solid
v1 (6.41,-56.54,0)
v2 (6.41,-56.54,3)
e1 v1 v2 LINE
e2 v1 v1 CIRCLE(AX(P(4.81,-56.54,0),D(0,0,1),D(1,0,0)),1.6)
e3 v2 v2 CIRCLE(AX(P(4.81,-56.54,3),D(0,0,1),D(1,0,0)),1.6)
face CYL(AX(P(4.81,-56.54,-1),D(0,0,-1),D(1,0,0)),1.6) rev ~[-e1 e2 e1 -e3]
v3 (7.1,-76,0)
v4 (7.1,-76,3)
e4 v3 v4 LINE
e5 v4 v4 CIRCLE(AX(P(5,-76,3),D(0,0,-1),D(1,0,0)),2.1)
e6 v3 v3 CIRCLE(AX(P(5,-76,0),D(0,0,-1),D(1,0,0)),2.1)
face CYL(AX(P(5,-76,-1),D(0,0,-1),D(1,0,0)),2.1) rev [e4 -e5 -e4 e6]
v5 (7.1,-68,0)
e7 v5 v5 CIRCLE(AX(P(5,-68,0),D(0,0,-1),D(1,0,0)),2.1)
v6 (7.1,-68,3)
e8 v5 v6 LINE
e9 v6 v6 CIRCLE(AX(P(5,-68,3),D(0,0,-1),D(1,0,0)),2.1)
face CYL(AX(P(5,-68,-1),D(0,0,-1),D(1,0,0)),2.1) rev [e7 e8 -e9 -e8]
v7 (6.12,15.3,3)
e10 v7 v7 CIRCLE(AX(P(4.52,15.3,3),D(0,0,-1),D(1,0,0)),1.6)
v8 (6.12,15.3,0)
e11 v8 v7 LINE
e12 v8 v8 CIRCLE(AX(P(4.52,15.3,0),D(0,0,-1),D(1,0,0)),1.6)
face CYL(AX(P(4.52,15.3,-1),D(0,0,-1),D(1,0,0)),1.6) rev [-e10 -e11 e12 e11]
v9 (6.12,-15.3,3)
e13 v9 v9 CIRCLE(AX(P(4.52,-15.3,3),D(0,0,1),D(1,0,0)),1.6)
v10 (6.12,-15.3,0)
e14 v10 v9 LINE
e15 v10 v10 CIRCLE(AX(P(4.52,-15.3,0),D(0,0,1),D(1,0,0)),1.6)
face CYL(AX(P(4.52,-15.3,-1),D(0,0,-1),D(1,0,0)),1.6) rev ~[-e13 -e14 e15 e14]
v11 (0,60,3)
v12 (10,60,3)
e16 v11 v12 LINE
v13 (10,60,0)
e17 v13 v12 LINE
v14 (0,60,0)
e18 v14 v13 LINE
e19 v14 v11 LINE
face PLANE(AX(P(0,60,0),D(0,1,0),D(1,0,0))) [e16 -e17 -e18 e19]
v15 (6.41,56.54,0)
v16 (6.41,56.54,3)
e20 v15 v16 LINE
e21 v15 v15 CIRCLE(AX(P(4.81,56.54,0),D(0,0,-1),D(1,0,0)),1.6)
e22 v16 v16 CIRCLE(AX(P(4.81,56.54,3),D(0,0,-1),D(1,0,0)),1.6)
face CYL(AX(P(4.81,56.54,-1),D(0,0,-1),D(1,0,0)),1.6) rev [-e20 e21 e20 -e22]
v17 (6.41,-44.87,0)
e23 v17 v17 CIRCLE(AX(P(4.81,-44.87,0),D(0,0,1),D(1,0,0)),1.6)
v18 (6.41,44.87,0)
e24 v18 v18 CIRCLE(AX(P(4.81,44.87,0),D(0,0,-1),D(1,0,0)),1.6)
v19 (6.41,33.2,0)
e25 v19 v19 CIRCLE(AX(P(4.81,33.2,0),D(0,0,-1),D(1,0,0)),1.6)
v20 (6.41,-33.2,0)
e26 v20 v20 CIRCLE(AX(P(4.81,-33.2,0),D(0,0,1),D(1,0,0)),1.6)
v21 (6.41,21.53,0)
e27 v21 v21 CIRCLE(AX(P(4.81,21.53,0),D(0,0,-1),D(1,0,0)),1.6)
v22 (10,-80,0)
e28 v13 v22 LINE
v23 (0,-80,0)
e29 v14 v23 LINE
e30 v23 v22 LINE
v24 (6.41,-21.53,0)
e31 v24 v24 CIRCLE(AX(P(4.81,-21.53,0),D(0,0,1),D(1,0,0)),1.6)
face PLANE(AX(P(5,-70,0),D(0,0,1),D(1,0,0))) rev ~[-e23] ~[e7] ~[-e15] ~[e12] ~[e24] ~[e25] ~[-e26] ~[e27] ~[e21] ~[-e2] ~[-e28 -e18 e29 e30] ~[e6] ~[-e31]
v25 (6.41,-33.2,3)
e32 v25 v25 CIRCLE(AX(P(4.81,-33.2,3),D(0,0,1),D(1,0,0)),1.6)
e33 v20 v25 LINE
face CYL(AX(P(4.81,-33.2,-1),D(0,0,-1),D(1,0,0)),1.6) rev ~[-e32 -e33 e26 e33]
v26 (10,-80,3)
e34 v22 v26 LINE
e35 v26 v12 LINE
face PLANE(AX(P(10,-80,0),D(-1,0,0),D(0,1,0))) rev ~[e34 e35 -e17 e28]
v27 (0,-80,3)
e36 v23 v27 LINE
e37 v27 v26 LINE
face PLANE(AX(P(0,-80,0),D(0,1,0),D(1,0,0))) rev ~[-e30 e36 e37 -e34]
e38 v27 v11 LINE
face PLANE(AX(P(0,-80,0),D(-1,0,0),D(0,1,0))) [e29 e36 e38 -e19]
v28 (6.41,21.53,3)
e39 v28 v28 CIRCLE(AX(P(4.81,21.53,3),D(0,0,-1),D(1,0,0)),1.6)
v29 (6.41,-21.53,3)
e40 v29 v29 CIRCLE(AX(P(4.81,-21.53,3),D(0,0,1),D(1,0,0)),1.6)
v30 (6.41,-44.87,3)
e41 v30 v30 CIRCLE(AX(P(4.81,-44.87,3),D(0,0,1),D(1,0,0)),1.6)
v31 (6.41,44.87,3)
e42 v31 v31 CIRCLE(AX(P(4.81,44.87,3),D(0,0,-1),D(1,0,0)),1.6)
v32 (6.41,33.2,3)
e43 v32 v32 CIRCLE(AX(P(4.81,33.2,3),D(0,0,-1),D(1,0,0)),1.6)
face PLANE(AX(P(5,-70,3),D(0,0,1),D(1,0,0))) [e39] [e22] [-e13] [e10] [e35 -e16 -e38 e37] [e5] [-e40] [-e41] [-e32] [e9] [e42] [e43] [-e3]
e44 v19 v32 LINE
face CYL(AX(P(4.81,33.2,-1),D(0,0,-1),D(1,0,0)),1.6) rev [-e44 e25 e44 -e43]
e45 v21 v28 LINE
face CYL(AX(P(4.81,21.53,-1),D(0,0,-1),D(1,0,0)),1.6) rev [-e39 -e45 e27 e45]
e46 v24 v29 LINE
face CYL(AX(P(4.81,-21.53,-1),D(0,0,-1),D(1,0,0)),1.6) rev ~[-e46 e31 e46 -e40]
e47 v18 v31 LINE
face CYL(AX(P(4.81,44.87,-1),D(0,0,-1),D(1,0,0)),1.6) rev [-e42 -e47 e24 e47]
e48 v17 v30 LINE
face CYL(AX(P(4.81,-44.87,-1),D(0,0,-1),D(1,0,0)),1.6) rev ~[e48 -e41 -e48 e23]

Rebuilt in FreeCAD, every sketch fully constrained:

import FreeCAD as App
import Part
import Sketcher
from FreeCAD import Vector
Q = App.Units.Quantity

doc = App.newDocument("Part")
body = doc.addObject("PartDesign::Body", "Body")

# Sketch on XY plane
sketch1 = doc.addObject("Sketcher::SketchObject", "Sketch")
body.addObject(sketch1)
sketch1.AttachmentSupport = (doc.XY_Plane, [""])
sketch1.MapMode = "FlatFace"
sketch1.AttachmentOffset = App.Placement(Vector(0, 0, -1), App.Rotation())
sketch1.addGeometry(Part.Circle(Vector(5, -68, 0), Vector(0, 0, 1), 2.1), False)
sketch1.addConstraint([
    Sketcher.Constraint("Diameter", 0, Q("4.2 mm")),
    Sketcher.Constraint("DistanceX", -1, 1, 0, 3, Q("5 mm")),
    Sketcher.Constraint("DistanceY", 0, 3, -1, 1, Q("68 mm")),
])
pad1 = doc.addObject("PartDesign::Pad", "Pad")
body.addObject(pad1)
pad1.Profile = sketch1
pad1.Length = 5
body2 = doc.addObject("PartDesign::Body", "Body001")
body2.AllowCompound = True

# Sketch on XY plane
sketch2 = doc.addObject("Sketcher::SketchObject", "Sketch001")
body2.addObject(sketch2)
sketch2.AttachmentSupport = (doc.getObject("XY_Plane001"), [""])
sketch2.MapMode = "FlatFace"
sketch2.AttachmentOffset = App.Placement(Vector(0, 0, -1), App.Rotation())
sketch2.addGeometry(Part.Circle(Vector(5, -76, 0), Vector(0, 0, 1), 2.1), False)
sketch2.addConstraint([
    Sketcher.Constraint("Diameter", 0, Q("4.2 mm")),
    Sketcher.Constraint("DistanceX", -1, 1, 0, 3, Q("5 mm")),
    Sketcher.Constraint("DistanceY", 0, 3, -1, 1, Q("76 mm")),
])
pad2 = doc.addObject("PartDesign::Pad", "Pad001")
body2.addObject(pad2)
pad2.Profile = sketch2
pad2.Length = 5
doc.recompute()

boolean = doc.addObject("PartDesign::Boolean", "Boolean")
body2.addObject(boolean)
boolean.Type = "Fuse"
boolean.addObjects([body])
body3 = doc.addObject("PartDesign::Body", "Body002")

# Sketch on XY plane
sketch3 = doc.addObject("Sketcher::SketchObject", "Sketch002")
body3.addObject(sketch3)
sketch3.AttachmentSupport = (doc.getObject("XY_Plane002"), [""])
sketch3.MapMode = "FlatFace"
sketch3.addGeometry([
    Part.LineSegment(Vector(0, -60, 0), Vector(0, -80, 0)),
    Part.LineSegment(Vector(0, -80, 0), Vector(10, -80, 0)),
    Part.LineSegment(Vector(10, -80, 0), Vector(10, -60, 0)),
    Part.LineSegment(Vector(10, -60, 0), Vector(0, -60, 0)),
], False)
sketch3.addConstraint([
    Sketcher.Constraint("Coincident", 0, 2, 1, 1),
    Sketcher.Constraint("Coincident", 1, 2, 2, 1),
    Sketcher.Constraint("Coincident", 2, 2, 3, 1),
    Sketcher.Constraint("Coincident", 3, 2, 0, 1),
    Sketcher.Constraint("Vertical", 0),
    Sketcher.Constraint("Horizontal", 1),
    Sketcher.Constraint("Vertical", 2),
    Sketcher.Constraint("Horizontal", 3),
    Sketcher.Constraint("PointOnObject", 0, 2, -2),
    Sketcher.Constraint("DistanceX", 1, 1, 1, 2, Q("10 mm")),
    Sketcher.Constraint("DistanceY", 0, 2, 0, 1, Q("20 mm")),
    Sketcher.Constraint("DistanceY", 0, 2, -1, 1, Q("80 mm")),
])
pad3 = doc.addObject("PartDesign::Pad", "Pad002")
body3.addObject(pad3)
pad3.Profile = sketch3
pad3.Length = 3
doc.recompute()

boolean2 = doc.addObject("PartDesign::Boolean", "Boolean001")
body3.addObject(boolean2)
boolean2.Type = "Cut"
boolean2.addObjects([body2])
body4 = doc.addObject("PartDesign::Body", "Body003")

# Sketch on XY plane
sketch4 = doc.addObject("Sketcher::SketchObject", "Sketch003")
body4.addObject(sketch4)
sketch4.AttachmentSupport = (doc.getObject("XY_Plane003"), [""])
sketch4.MapMode = "FlatFace"
sketch4.AttachmentOffset = App.Placement(Vector(0, 0, -1), App.Rotation())
sketch4.addGeometry(Part.Circle(Vector(4.5, 15.3, 0), Vector(0, 0, 1), 1.6), False)
sketch4.addConstraint([
    Sketcher.Constraint("Diameter", 0, Q("3.2 mm")),
    Sketcher.Constraint("DistanceY", -1, 1, 0, 3, Q("15.3 mm")),
    Sketcher.Constraint("DistanceX", -1, 1, 0, 3, Q("4.52 mm")),
])
pad4 = doc.addObject("PartDesign::Pad", "Pad003")
body4.addObject(pad4)
pad4.Profile = sketch4
pad4.Length = 5
body5 = doc.addObject("PartDesign::Body", "Body004")

# Sketch on XY plane
sketch5 = doc.addObject("Sketcher::SketchObject", "Sketch004")
body5.addObject(sketch5)
sketch5.AttachmentSupport = (doc.getObject("XY_Plane004"), [""])
sketch5.MapMode = "FlatFace"
sketch5.AttachmentOffset = App.Placement(Vector(0, 0, -1), App.Rotation())
sketch5.addGeometry(Part.Circle(Vector(4.8, 44.9, 0), Vector(0, 0, 1), 1.6), False)
sketch5.addConstraint([
    Sketcher.Constraint("Diameter", 0, Q("3.2 mm")),
    Sketcher.Constraint("DistanceX", -1, 1, 0, 3, Q("4.81 mm")),
    Sketcher.Constraint("DistanceY", -1, 1, 0, 3, Q("44.87 mm")),
])
pad5 = doc.addObject("PartDesign::Pad", "Pad004")
body5.addObject(pad5)
pad5.Profile = sketch5
pad5.Length = 5
body6 = doc.addObject("PartDesign::Body", "Body005")

# Sketch on XY plane
sketch6 = doc.addObject("Sketcher::SketchObject", "Sketch005")
body6.addObject(sketch6)
sketch6.AttachmentSupport = (doc.getObject("XY_Plane005"), [""])
sketch6.MapMode = "FlatFace"
sketch6.AttachmentOffset = App.Placement(Vector(0, 0, -1), App.Rotation())
sketch6.addGeometry(Part.Circle(Vector(4.8, 33.2, 0), Vector(0, 0, 1), 1.6), False)
sketch6.addConstraint([
    Sketcher.Constraint("Diameter", 0, Q("3.2 mm")),
    Sketcher.Constraint("DistanceY", -1, 1, 0, 3, Q("33.2 mm")),
    Sketcher.Constraint("DistanceX", -1, 1, 0, 3, Q("4.81 mm")),
])
pad6 = doc.addObject("PartDesign::Pad", "Pad005")
body6.addObject(pad6)
pad6.Profile = sketch6
pad6.Length = 5
body7 = doc.addObject("PartDesign::Body", "Body006")

# Sketch on XY plane
sketch7 = doc.addObject("Sketcher::SketchObject", "Sketch006")
body7.addObject(sketch7)
sketch7.AttachmentSupport = (doc.getObject("XY_Plane006"), [""])
sketch7.MapMode = "FlatFace"
sketch7.AttachmentOffset = App.Placement(Vector(0, 0, -1), App.Rotation())
sketch7.addGeometry(Part.Circle(Vector(4.8, 21.5, 0), Vector(0, 0, 1), 1.6), False)
sketch7.addConstraint([
    Sketcher.Constraint("Diameter", 0, Q("3.2 mm")),
    Sketcher.Constraint("DistanceX", -1, 1, 0, 3, Q("4.81 mm")),
    Sketcher.Constraint("DistanceY", -1, 1, 0, 3, Q("21.53 mm")),
])
pad7 = doc.addObject("PartDesign::Pad", "Pad006")
body7.addObject(pad7)
pad7.Profile = sketch7
pad7.Length = 5
body8 = doc.addObject("PartDesign::Body", "Body007")
body8.AllowCompound = True

# Sketch on XY plane
sketch8 = doc.addObject("Sketcher::SketchObject", "Sketch007")
body8.addObject(sketch8)
sketch8.AttachmentSupport = (doc.getObject("XY_Plane007"), [""])
sketch8.MapMode = "FlatFace"
sketch8.AttachmentOffset = App.Placement(Vector(0, 0, -1), App.Rotation())
sketch8.addGeometry(Part.Circle(Vector(4.8, 56.5, 0), Vector(0, 0, 1), 1.6), False)
sketch8.addConstraint([
    Sketcher.Constraint("Diameter", 0, Q("3.2 mm")),
    Sketcher.Constraint("DistanceX", -1, 1, 0, 3, Q("4.81 mm")),
    Sketcher.Constraint("DistanceY", -1, 1, 0, 3, Q("56.54 mm")),
])
pad8 = doc.addObject("PartDesign::Pad", "Pad007")
body8.addObject(pad8)
pad8.Profile = sketch8
pad8.Length = 5
doc.recompute()

boolean3 = doc.addObject("PartDesign::Boolean", "Boolean002")
body8.addObject(boolean3)
boolean3.Type = "Fuse"
boolean3.addObjects([body5])
doc.recompute()

boolean4 = doc.addObject("PartDesign::Boolean", "Boolean003")
body8.addObject(boolean4)
boolean4.Type = "Fuse"
boolean4.addObjects([body6])
doc.recompute()

boolean5 = doc.addObject("PartDesign::Boolean", "Boolean004")
body8.addObject(boolean5)
boolean5.Type = "Fuse"
boolean5.addObjects([body7])
doc.recompute()

boolean6 = doc.addObject("PartDesign::Boolean", "Boolean005")
body8.addObject(boolean6)
boolean6.Type = "Fuse"
boolean6.addObjects([body4])
body9 = doc.addObject("PartDesign::Body", "Body008")

# Sketch on XY plane
sketch9 = doc.addObject("Sketcher::SketchObject", "Sketch008")
body9.addObject(sketch9)
sketch9.AttachmentSupport = (doc.getObject("XY_Plane008"), [""])
sketch9.MapMode = "FlatFace"
sketch9.addGeometry([
    Part.LineSegment(Vector(0, 60, 0), Vector(0, 0, 0)),
    Part.LineSegment(Vector(0, 0, 0), Vector(10, 0, 0)),
    Part.LineSegment(Vector(10, 0, 0), Vector(10, 60, 0)),
    Part.LineSegment(Vector(10, 60, 0), Vector(0, 60, 0)),
], False)
sketch9.addConstraint([
    Sketcher.Constraint("Coincident", 0, 2, 1, 1),
    Sketcher.Constraint("Coincident", 1, 2, 2, 1),
    Sketcher.Constraint("Coincident", 2, 2, 3, 1),
    Sketcher.Constraint("Coincident", 3, 2, 0, 1),
    Sketcher.Constraint("Vertical", 0),
    Sketcher.Constraint("Horizontal", 1),
    Sketcher.Constraint("Vertical", 2),
    Sketcher.Constraint("Horizontal", 3),
    Sketcher.Constraint("Coincident", 0, 2, -1, 1),
    Sketcher.Constraint("DistanceX", 1, 1, 1, 2, Q("10 mm")),
    Sketcher.Constraint("DistanceY", 0, 2, 0, 1, Q("60 mm")),
])
pad9 = doc.addObject("PartDesign::Pad", "Pad008")
body9.addObject(pad9)
pad9.Profile = sketch9
pad9.Length = 3
doc.recompute()

boolean7 = doc.addObject("PartDesign::Boolean", "Boolean006")
body9.addObject(boolean7)
boolean7.Type = "Cut"
boolean7.addObjects([body8])
body10 = doc.addObject("PartDesign::Body", "Body009")
doc.recompute()

mirroring = doc.addObject("Part::Mirroring", "Mirroring")
mirroring.Source = body9
mirroring.Base = Vector(0, 0, 0)
mirroring.Normal = Vector(0, 1, 0)
body10.BaseFeature = mirroring
doc.recompute()
body11 = doc.addObject("PartDesign::Body", "Body010")

# Sketch on XY plane
sketch10 = doc.addObject("Sketcher::SketchObject", "Sketch009")
body11.addObject(sketch10)
sketch10.AttachmentSupport = (doc.getObject("XY_Plane010"), [""])
sketch10.MapMode = "FlatFace"
sketch10.AttachmentOffset = App.Placement(Vector(0, 0, -1), App.Rotation())
sketch10.addGeometry(Part.Circle(Vector(4.5, 15.3, 0), Vector(0, 0, 1), 1.6), False)
sketch10.addConstraint([
    Sketcher.Constraint("Diameter", 0, Q("3.2 mm")),
    Sketcher.Constraint("DistanceY", -1, 1, 0, 3, Q("15.3 mm")),
    Sketcher.Constraint("DistanceX", -1, 1, 0, 3, Q("4.52 mm")),
])
pad10 = doc.addObject("PartDesign::Pad", "Pad009")
body11.addObject(pad10)
pad10.Profile = sketch10
pad10.Length = 5
body12 = doc.addObject("PartDesign::Body", "Body011")

# Sketch on XY plane
sketch11 = doc.addObject("Sketcher::SketchObject", "Sketch010")
body12.addObject(sketch11)
sketch11.AttachmentSupport = (doc.getObject("XY_Plane011"), [""])
sketch11.MapMode = "FlatFace"
sketch11.AttachmentOffset = App.Placement(Vector(0, 0, -1), App.Rotation())
sketch11.addGeometry(Part.Circle(Vector(4.8, 44.9, 0), Vector(0, 0, 1), 1.6), False)
sketch11.addConstraint([
    Sketcher.Constraint("Diameter", 0, Q("3.2 mm")),
    Sketcher.Constraint("DistanceX", -1, 1, 0, 3, Q("4.81 mm")),
    Sketcher.Constraint("DistanceY", -1, 1, 0, 3, Q("44.87 mm")),
])
pad11 = doc.addObject("PartDesign::Pad", "Pad010")
body12.addObject(pad11)
pad11.Profile = sketch11
pad11.Length = 5
body13 = doc.addObject("PartDesign::Body", "Body012")

# Sketch on XY plane
sketch12 = doc.addObject("Sketcher::SketchObject", "Sketch011")
body13.addObject(sketch12)
sketch12.AttachmentSupport = (doc.getObject("XY_Plane012"), [""])
sketch12.MapMode = "FlatFace"
sketch12.AttachmentOffset = App.Placement(Vector(0, 0, -1), App.Rotation())
sketch12.addGeometry(Part.Circle(Vector(4.8, 33.2, 0), Vector(0, 0, 1), 1.6), False)
sketch12.addConstraint([
    Sketcher.Constraint("Diameter", 0, Q("3.2 mm")),
    Sketcher.Constraint("DistanceY", -1, 1, 0, 3, Q("33.2 mm")),
    Sketcher.Constraint("DistanceX", -1, 1, 0, 3, Q("4.81 mm")),
])
pad12 = doc.addObject("PartDesign::Pad", "Pad011")
body13.addObject(pad12)
pad12.Profile = sketch12
pad12.Length = 5
body14 = doc.addObject("PartDesign::Body", "Body013")

# Sketch on XY plane
sketch13 = doc.addObject("Sketcher::SketchObject", "Sketch012")
body14.addObject(sketch13)
sketch13.AttachmentSupport = (doc.getObject("XY_Plane013"), [""])
sketch13.MapMode = "FlatFace"
sketch13.AttachmentOffset = App.Placement(Vector(0, 0, -1), App.Rotation())
sketch13.addGeometry(Part.Circle(Vector(4.8, 21.5, 0), Vector(0, 0, 1), 1.6), False)
sketch13.addConstraint([
    Sketcher.Constraint("Diameter", 0, Q("3.2 mm")),
    Sketcher.Constraint("DistanceX", -1, 1, 0, 3, Q("4.81 mm")),
    Sketcher.Constraint("DistanceY", -1, 1, 0, 3, Q("21.53 mm")),
])
pad13 = doc.addObject("PartDesign::Pad", "Pad012")
body14.addObject(pad13)
pad13.Profile = sketch13
pad13.Length = 5
body15 = doc.addObject("PartDesign::Body", "Body014")
body15.AllowCompound = True

# Sketch on XY plane
sketch14 = doc.addObject("Sketcher::SketchObject", "Sketch013")
body15.addObject(sketch14)
sketch14.AttachmentSupport = (doc.getObject("XY_Plane014"), [""])
sketch14.MapMode = "FlatFace"
sketch14.AttachmentOffset = App.Placement(Vector(0, 0, -1), App.Rotation())
sketch14.addGeometry(Part.Circle(Vector(4.8, 56.5, 0), Vector(0, 0, 1), 1.6), False)
sketch14.addConstraint([
    Sketcher.Constraint("Diameter", 0, Q("3.2 mm")),
    Sketcher.Constraint("DistanceX", -1, 1, 0, 3, Q("4.81 mm")),
    Sketcher.Constraint("DistanceY", -1, 1, 0, 3, Q("56.54 mm")),
])
pad14 = doc.addObject("PartDesign::Pad", "Pad013")
body15.addObject(pad14)
pad14.Profile = sketch14
pad14.Length = 5
doc.recompute()

boolean8 = doc.addObject("PartDesign::Boolean", "Boolean007")
body15.addObject(boolean8)
boolean8.Type = "Fuse"
boolean8.addObjects([body12])
doc.recompute()

boolean9 = doc.addObject("PartDesign::Boolean", "Boolean008")
body15.addObject(boolean9)
boolean9.Type = "Fuse"
boolean9.addObjects([body13])
doc.recompute()

boolean10 = doc.addObject("PartDesign::Boolean", "Boolean009")
body15.addObject(boolean10)
boolean10.Type = "Fuse"
boolean10.addObjects([body14])
doc.recompute()

boolean11 = doc.addObject("PartDesign::Boolean", "Boolean010")
body15.addObject(boolean11)
boolean11.Type = "Fuse"
boolean11.addObjects([body11])
body16 = doc.addObject("PartDesign::Body", "Body015")

# Sketch on XY plane
sketch15 = doc.addObject("Sketcher::SketchObject", "Sketch014")
body16.addObject(sketch15)
sketch15.AttachmentSupport = (doc.getObject("XY_Plane015"), [""])
sketch15.MapMode = "FlatFace"
sketch15.addGeometry([
    Part.LineSegment(Vector(0, 60, 0), Vector(0, 0, 0)),
    Part.LineSegment(Vector(0, 0, 0), Vector(10, 0, 0)),
    Part.LineSegment(Vector(10, 0, 0), Vector(10, 60, 0)),
    Part.LineSegment(Vector(10, 60, 0), Vector(0, 60, 0)),
], False)
sketch15.addConstraint([
    Sketcher.Constraint("Coincident", 0, 2, 1, 1),
    Sketcher.Constraint("Coincident", 1, 2, 2, 1),
    Sketcher.Constraint("Coincident", 2, 2, 3, 1),
    Sketcher.Constraint("Coincident", 3, 2, 0, 1),
    Sketcher.Constraint("Vertical", 0),
    Sketcher.Constraint("Horizontal", 1),
    Sketcher.Constraint("Vertical", 2),
    Sketcher.Constraint("Horizontal", 3),
    Sketcher.Constraint("Coincident", 0, 2, -1, 1),
    Sketcher.Constraint("DistanceX", 1, 1, 1, 2, Q("10 mm")),
    Sketcher.Constraint("DistanceY", 0, 2, 0, 1, Q("60 mm")),
])
pad15 = doc.addObject("PartDesign::Pad", "Pad014")
body16.addObject(pad15)
pad15.Profile = sketch15
pad15.Length = 3
doc.recompute()

boolean12 = doc.addObject("PartDesign::Boolean", "Boolean011")
body16.addObject(boolean12)
boolean12.Type = "Cut"
boolean12.addObjects([body15])
doc.recompute()

boolean13 = doc.addObject("PartDesign::Boolean", "Boolean012")
body16.addObject(boolean13)
boolean13.Type = "Fuse"
boolean13.addObjects([body10])
doc.recompute()

boolean14 = doc.addObject("PartDesign::Boolean", "Boolean013")
body16.addObject(boolean14)
boolean14.Type = "Fuse"
boolean14.addObjects([body3])
mirroring.Visibility = False

doc.recompute()
